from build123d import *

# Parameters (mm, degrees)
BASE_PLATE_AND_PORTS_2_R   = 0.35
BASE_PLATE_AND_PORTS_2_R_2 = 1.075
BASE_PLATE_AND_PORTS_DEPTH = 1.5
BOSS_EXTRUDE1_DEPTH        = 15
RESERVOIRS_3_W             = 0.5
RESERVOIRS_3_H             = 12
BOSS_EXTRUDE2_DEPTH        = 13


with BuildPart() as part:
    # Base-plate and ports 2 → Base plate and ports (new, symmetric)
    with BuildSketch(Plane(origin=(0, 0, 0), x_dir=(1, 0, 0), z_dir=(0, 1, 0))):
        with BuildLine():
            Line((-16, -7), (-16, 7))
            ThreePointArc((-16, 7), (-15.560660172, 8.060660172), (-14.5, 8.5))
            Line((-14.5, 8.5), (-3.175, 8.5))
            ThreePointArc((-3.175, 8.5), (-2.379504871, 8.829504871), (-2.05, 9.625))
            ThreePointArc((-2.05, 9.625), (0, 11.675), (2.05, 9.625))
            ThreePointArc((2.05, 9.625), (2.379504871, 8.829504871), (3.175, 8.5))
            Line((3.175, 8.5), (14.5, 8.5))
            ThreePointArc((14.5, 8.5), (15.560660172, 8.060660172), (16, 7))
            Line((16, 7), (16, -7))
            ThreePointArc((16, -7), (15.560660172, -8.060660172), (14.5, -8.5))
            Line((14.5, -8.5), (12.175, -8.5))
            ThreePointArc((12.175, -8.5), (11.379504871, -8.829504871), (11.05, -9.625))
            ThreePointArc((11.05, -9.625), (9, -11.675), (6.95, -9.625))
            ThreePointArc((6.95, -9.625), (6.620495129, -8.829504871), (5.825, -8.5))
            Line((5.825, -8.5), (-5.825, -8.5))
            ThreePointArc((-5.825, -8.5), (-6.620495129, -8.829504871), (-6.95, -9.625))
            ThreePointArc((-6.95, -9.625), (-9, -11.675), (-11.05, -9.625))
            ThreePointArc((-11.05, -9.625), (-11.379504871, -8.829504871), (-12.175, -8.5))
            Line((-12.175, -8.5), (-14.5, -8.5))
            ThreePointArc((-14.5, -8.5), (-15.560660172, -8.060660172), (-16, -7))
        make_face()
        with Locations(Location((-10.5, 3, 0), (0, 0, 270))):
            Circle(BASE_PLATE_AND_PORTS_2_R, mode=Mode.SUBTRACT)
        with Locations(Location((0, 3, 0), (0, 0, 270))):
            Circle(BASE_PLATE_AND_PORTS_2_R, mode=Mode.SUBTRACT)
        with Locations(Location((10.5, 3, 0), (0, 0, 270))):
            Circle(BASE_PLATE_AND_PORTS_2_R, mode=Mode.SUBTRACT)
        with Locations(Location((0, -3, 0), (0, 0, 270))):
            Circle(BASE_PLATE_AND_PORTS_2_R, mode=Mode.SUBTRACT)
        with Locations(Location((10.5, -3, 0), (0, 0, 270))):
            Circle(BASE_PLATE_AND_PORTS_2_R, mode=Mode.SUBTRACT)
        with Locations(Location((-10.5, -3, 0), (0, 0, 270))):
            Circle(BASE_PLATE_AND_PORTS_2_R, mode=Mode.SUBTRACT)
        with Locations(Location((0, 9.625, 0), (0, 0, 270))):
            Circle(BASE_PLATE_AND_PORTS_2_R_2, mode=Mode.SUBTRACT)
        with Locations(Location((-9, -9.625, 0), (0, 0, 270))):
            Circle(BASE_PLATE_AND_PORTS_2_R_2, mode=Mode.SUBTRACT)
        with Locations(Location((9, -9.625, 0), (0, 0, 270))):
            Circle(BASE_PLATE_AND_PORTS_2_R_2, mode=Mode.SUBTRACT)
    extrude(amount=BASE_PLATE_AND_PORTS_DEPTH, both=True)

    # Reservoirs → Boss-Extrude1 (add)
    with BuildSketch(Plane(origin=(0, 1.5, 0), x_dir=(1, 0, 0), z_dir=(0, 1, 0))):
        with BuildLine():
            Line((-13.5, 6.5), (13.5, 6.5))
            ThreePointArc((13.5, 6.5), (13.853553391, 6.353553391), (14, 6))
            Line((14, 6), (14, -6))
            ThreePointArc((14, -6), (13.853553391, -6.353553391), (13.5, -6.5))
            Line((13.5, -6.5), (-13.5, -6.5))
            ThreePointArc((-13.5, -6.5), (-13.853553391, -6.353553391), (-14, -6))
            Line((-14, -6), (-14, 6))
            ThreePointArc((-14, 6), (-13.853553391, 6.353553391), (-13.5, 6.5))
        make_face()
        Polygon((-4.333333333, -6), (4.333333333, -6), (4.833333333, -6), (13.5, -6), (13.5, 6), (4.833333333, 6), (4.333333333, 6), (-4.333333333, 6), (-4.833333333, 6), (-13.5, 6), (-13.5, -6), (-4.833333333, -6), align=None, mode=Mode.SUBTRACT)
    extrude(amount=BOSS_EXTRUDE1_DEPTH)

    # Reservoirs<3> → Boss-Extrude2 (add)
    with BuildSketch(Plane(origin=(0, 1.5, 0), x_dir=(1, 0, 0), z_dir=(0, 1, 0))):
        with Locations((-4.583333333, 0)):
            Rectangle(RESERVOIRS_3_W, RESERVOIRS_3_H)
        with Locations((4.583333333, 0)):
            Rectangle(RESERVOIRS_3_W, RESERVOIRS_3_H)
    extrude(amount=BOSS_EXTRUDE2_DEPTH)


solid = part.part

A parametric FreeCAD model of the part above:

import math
import FreeCAD as App
import Part
import Sketcher

doc = App.newDocument("Part")
body = doc.addObject("PartDesign::Body", "Body")

sketch1 = body.newObject("Sketcher::SketchObject", "Sketch")
sketch1.AttachmentSupport = (doc.getObject("XZ_Plane"), [""])
sketch1.MapMode = "FlatFace"
sketch1.addGeometry([
    Part.LineSegment(App.Vector(-16, -7, 0), App.Vector(-16, 7, 0)),
    Part.ArcOfCircle(Part.Circle(App.Vector(-14.5, 7, 0), App.Vector(0, 0, 1), 1.5), math.radians(90), math.radians(180)),
    Part.LineSegment(App.Vector(-14.5, 8.5, 0), App.Vector(-12.18, 8.5, 0)),
    Part.ArcOfCircle(Part.Circle(App.Vector(-12.17, 9.62, 0), App.Vector(0, 0, 1), 1.12), math.radians(-90), math.radians(0)),
    Part.ArcOfCircle(Part.Circle(App.Vector(-9, 9.62, 0), App.Vector(0, 0, 1), 2.05), math.radians(0), math.radians(180)),
    Part.ArcOfCircle(Part.Circle(App.Vector(-5.83, 9.62, 0), App.Vector(0, 0, 1), 1.12), math.radians(180), math.radians(270)),
    Part.LineSegment(App.Vector(-5.83, 8.5, 0), App.Vector(5.83, 8.5, 0)),
    Part.ArcOfCircle(Part.Circle(App.Vector(5.83, 9.62, 0), App.Vector(0, 0, 1), 1.12), math.radians(-90), math.radians(0)),
    Part.ArcOfCircle(Part.Circle(App.Vector(9, 9.62, 0), App.Vector(0, 0, 1), 2.05), math.radians(0), math.radians(180)),
    Part.ArcOfCircle(Part.Circle(App.Vector(12.17, 9.62, 0), App.Vector(0, 0, 1), 1.12), math.radians(180), math.radians(270)),
    Part.LineSegment(App.Vector(12.18, 8.5, 0), App.Vector(14.5, 8.5, 0)),
    Part.ArcOfCircle(Part.Circle(App.Vector(14.5, 7, 0), App.Vector(0, 0, 1), 1.5), math.radians(0), math.radians(90)),
    Part.LineSegment(App.Vector(16, 7, 0), App.Vector(16, -7, 0)),
    Part.ArcOfCircle(Part.Circle(App.Vector(14.5, -7, 0), App.Vector(0, 0, 1), 1.5), math.radians(-90), math.radians(0)),
    Part.LineSegment(App.Vector(14.5, -8.5, 0), App.Vector(3.17, -8.5, 0)),
    Part.ArcOfCircle(Part.Circle(App.Vector(3.17, -9.62, 0), App.Vector(0, 0, 1), 1.12), math.radians(90), math.radians(180)),
    Part.ArcOfCircle(Part.Circle(App.Vector(0, -9.62, 0), App.Vector(0, 0, 1), 2.05), math.radians(180), math.radians(360)),
    Part.ArcOfCircle(Part.Circle(App.Vector(-3.17, -9.62, 0), App.Vector(0, 0, 1), 1.12), math.radians(0), math.radians(90)),
    Part.LineSegment(App.Vector(-3.17, -8.5, 0), App.Vector(-14.5, -8.5, 0)),
    Part.ArcOfCircle(Part.Circle(App.Vector(-14.5, -7, 0), App.Vector(0, 0, 1), 1.5), math.radians(180), math.radians(270)),
    Part.Circle(App.Vector(9, 9.62, 0), App.Vector(0, 0, 1), 1.07),
    Part.Circle(App.Vector(10.5, 3, 0), App.Vector(0, 0, 1), 0.35),
    Part.Circle(App.Vector(-9, 9.62, 0), App.Vector(0, 0, 1), 1.07),
    Part.Circle(App.Vector(0, 3, 0), App.Vector(0, 0, 1), 0.35),
    Part.Circle(App.Vector(-10.5, 3, 0), App.Vector(0, 0, 1), 0.35),
    Part.Circle(App.Vector(10.5, -3, 0), App.Vector(0, 0, 1), 0.35),
    Part.Circle(App.Vector(0, -3, 0), App.Vector(0, 0, 1), 0.35),
    Part.Circle(App.Vector(-10.5, -3, 0), App.Vector(0, 0, 1), 0.35),
    Part.Circle(App.Vector(0, -9.62, 0), App.Vector(0, 0, 1), 1.07),
], False)
sketch1.addConstraint([
    Sketcher.Constraint("Tangent", 0, 2, 1, 2),
    Sketcher.Constraint("Tangent", 1, 1, 2, 1),
    Sketcher.Constraint("Tangent", 2, 2, 3, 1),
    Sketcher.Constraint("Tangent", 3, 2, 4, 2),
    Sketcher.Constraint("Tangent", 4, 1, 5, 1),
    Sketcher.Constraint("Tangent", 5, 2, 6, 1),
    Sketcher.Constraint("Tangent", 6, 2, 7, 1),
    Sketcher.Constraint("Tangent", 7, 2, 8, 2),
    Sketcher.Constraint("Tangent", 8, 1, 9, 1),
    Sketcher.Constraint("Tangent", 9, 2, 10, 1),
    Sketcher.Constraint("Tangent", 10, 2, 11, 2),
    Sketcher.Constraint("Tangent", 11, 1, 12, 1),
    Sketcher.Constraint("Tangent", 12, 2, 13, 2),
    Sketcher.Constraint("Tangent", 13, 1, 14, 1),
    Sketcher.Constraint("Tangent", 14, 2, 15, 1),
    Sketcher.Constraint("Tangent", 15, 2, 16, 2),
    Sketcher.Constraint("Tangent", 16, 1, 17, 1),
    Sketcher.Constraint("Tangent", 17, 2, 18, 1),
    Sketcher.Constraint("Tangent", 18, 2, 19, 2),
    Sketcher.Constraint("Tangent", 19, 1, 0, 1),
    Sketcher.Constraint("Vertical", 0),
    Sketcher.Constraint("Horizontal", 2),
    Sketcher.Constraint("Horizontal", 6),
    Sketcher.Constraint("Horizontal", 10),
    Sketcher.Constraint("Vertical", 12),
    Sketcher.Constraint("Horizontal", 14),
    Sketcher.Constraint("Horizontal", 18),
    Sketcher.Constraint("Coincident", 20, 3, 8, 3),
    Sketcher.Constraint("Coincident", 22, 3, 4, 3),
    Sketcher.Constraint("Coincident", 28, 3, 16, 3),
    Sketcher.Constraint("Equal", 3, 5),
    Sketcher.Constraint("Equal", 5, 7),
    Sketcher.Constraint("Equal", 4, 8),
    Sketcher.Constraint("Equal", 7, 9),
    Sketcher.Constraint("Equal", 1, 11),
    Sketcher.Constraint("Equal", 11, 13),
    Sketcher.Constraint("Equal", 9, 15),
    Sketcher.Constraint("Equal", 8, 16),
    Sketcher.Constraint("Equal", 15, 17),
    Sketcher.Constraint("Equal", 13, 19),
    Sketcher.Constraint("Equal", 20, 22),
    Sketcher.Constraint("Equal", 21, 23),
    Sketcher.Constraint("Equal", 23, 24),
    Sketcher.Constraint("Equal", 24, 25),
    Sketcher.Constraint("Equal", 25, 26),
    Sketcher.Constraint("Equal", 26, 27),
    Sketcher.Constraint("Equal", 22, 28),
    Sketcher.Constraint("Symmetric", 1, 3, 13, 3, -1, 1),
    Sketcher.Constraint("Symmetric", 24, 3, 25, 3, -1, 1),
    Sketcher.Constraint("Symmetric", 23, 3, 26, 3, -1, 1),
    Sketcher.Constraint("Symmetric", 21, 3, 27, 3, -1, 1),
    Sketcher.Constraint("Symmetric", 4, 3, 8, 3, -2),
    Sketcher.Constraint("Symmetric", 15, 3, 17, 3, -2),
    Sketcher.Constraint("Symmetric", 21, 3, 24, 3, -2),
    Sketcher.Constraint("PointOnObject", 23, 3, -2),
    Sketcher.Constraint("Horizontal", 3, 3, 4, 3),
    Sketcher.Constraint("Horizontal", 4, 3, 5, 3),
    Sketcher.Constraint("Horizontal", 8, 3, 9, 3),
    Sketcher.Constraint("Horizontal", 15, 3, 16, 3),
    Sketcher.Constraint("Horizontal", 21, 3, 23, 3),
    Sketcher.Constraint("Diameter", 21, 0.7),
    Sketcher.Constraint("Radius", 1, 1.5),
    Sketcher.Constraint("Diameter", 20, 2.15),
    Sketcher.Constraint("DistanceY", 0, 1, 0, 2, 14.0),
    Sketcher.Constraint("Radius", 4, 2.05),
    Sketcher.Constraint("DistanceX", 4, 3, -1, 1, 9.0),
    Sketcher.Constraint("DistanceY", -1, 1, 21, 3, 3.0),
    Sketcher.Constraint("DistanceX", 0, 2, -1, 1, 16.0),
    Sketcher.Constraint("Radius", 3, 1.125),
    Sketcher.Constraint("DistanceX", 21, 3, 11, 3, 4.0),
])
pad1 = body.newObject("PartDesign::Pad", "Pad")
pad1.Profile = sketch1
pad1.Length = 3
pad1.Midplane = True

sketch2 = body.newObject("Sketcher::SketchObject", "Sketch001")
sketch2.AttachmentSupport = (doc.getObject("XZ_Plane"), [""])
sketch2.MapMode = "FlatFace"
sketch2.AttachmentOffset = App.Placement(App.Vector(0, 0, -1.5), App.Rotation())
sketch2.addGeometry([
    Part.LineSegment(App.Vector(13.5, -6.5, 0), App.Vector(-13.5, -6.5, 0)),
    Part.ArcOfCircle(Part.Circle(App.Vector(-13.5, -6, 0), App.Vector(0, 0, 1), 0.5), math.radians(180), math.radians(270)),
    Part.LineSegment(App.Vector(-14, -6, 0), App.Vector(-14, 6, 0)),
    Part.ArcOfCircle(Part.Circle(App.Vector(-13.5, 6, 0), App.Vector(0, 0, 1), 0.5), math.radians(90), math.radians(180)),
    Part.LineSegment(App.Vector(-13.5, 6.5, 0), App.Vector(13.5, 6.5, 0)),
    Part.ArcOfCircle(Part.Circle(App.Vector(13.5, 6, 0), App.Vector(0, 0, 1), 0.5), math.radians(0), math.radians(90)),
    Part.LineSegment(App.Vector(14, 6, 0), App.Vector(14, -6, 0)),
    Part.ArcOfCircle(Part.Circle(App.Vector(13.5, -6, 0), App.Vector(0, 0, 1), 0.5), math.radians(-90), math.radians(0)),
    Part.LineSegment(App.Vector(-13.5, 6, 0), App.Vector(-13.5, -6, 0)),
    Part.LineSegment(App.Vector(-13.5, -6, 0), App.Vector(13.5, -6, 0)),
    Part.LineSegment(App.Vector(13.5, -6, 0), App.Vector(13.5, 6, 0)),
    Part.LineSegment(App.Vector(13.5, 6, 0), App.Vector(-13.5, 6, 0)),
], False)
sketch2.addConstraint([
    Sketcher.Constraint("Tangent", 0, 2, 1, 2),
    Sketcher.Constraint("Tangent", 1, 1, 2, 1),
    Sketcher.Constraint("Tangent", 2, 2, 3, 2),
    Sketcher.Constraint("Tangent", 3, 1, 4, 1),
    Sketcher.Constraint("Tangent", 4, 2, 5, 2),
    Sketcher.Constraint("Tangent", 5, 1, 6, 1),
    Sketcher.Constraint("Tangent", 6, 2, 7, 2),
    Sketcher.Constraint("Tangent", 7, 1, 0, 1),
    Sketcher.Constraint("Coincident", 8, 2, 9, 1),
    Sketcher.Constraint("Coincident", 9, 2, 10, 1),
    Sketcher.Constraint("Coincident", 10, 2, 11, 1),
    Sketcher.Constraint("Coincident", 11, 2, 8, 1),
    Sketcher.Constraint("Horizontal", 0),
    Sketcher.Constraint("Vertical", 2),
    Sketcher.Constraint("Horizontal", 4),
    Sketcher.Constraint("Vertical", 6),
    Sketcher.Constraint("Vertical", 8),
    Sketcher.Constraint("Horizontal", 9),
    Sketcher.Constraint("Vertical", 10),
    Sketcher.Constraint("Horizontal", 11),
    Sketcher.Constraint("Coincident", 8, 2, 1, 3),
    Sketcher.Constraint("Coincident", 9, 2, 7, 3),
    Sketcher.Constraint("Coincident", 10, 2, 5, 3),
    Sketcher.Constraint("Equal", 1, 3),
    Sketcher.Constraint("Symmetric", 1, 3, 5, 3, -1, 1),
    Sketcher.Constraint("Radius", 1, 0.5),
    Sketcher.Constraint("DistanceX", 0, 2, 0, 1, 27.0),
    Sketcher.Constraint("DistanceY", 2, 1, 2, 2, 12.0),
])
pad2 = body.newObject("PartDesign::Pad", "Pad001")
pad2.Profile = sketch2
pad2.Length = 15
pad2.Reversed = True

sketch3 = body.newObject("Sketcher::SketchObject", "Sketch002")
sketch3.AttachmentSupport = (doc.getObject("XZ_Plane"), [""])
sketch3.MapMode = "FlatFace"
sketch3.AttachmentOffset = App.Placement(App.Vector(0, 0, -1.5), App.Rotation())
sketch3.addGeometry([
    Part.LineSegment(App.Vector(-4.8, -6, 0), App.Vector(-4.8, 6, 0)),
    Part.LineSegment(App.Vector(-4.8, 6, 0), App.Vector(-4.3, 6, 0)),
    Part.LineSegment(App.Vector(-4.3, 6, 0), App.Vector(-4.3, -6, 0)),
    Part.LineSegment(App.Vector(-4.3, -6, 0), App.Vector(-4.8, -6, 0)),
    Part.LineSegment(App.Vector(4.3, -6, 0), App.Vector(4.3, 6, 0)),
    Part.LineSegment(App.Vector(4.3, 6, 0), App.Vector(4.8, 6, 0)),
    Part.LineSegment(App.Vector(4.8, 6, 0), App.Vector(4.8, -6, 0)),
    Part.LineSegment(App.Vector(4.8, -6, 0), App.Vector(4.3, -6, 0)),
], False)
sketch3.addConstraint([
    Sketcher.Constraint("Coincident", 0, 2, 1, 1),
    Sketcher.Constraint("Coincident", 1, 2, 2, 1),
    Sketcher.Constraint("Coincident", 2, 2, 3, 1),
    Sketcher.Constraint("Coincident", 3, 2, 0, 1),
    Sketcher.Constraint("Coincident", 4, 2, 5, 1),
    Sketcher.Constraint("Coincident", 5, 2, 6, 1),
    Sketcher.Constraint("Coincident", 6, 2, 7, 1),
    Sketcher.Constraint("Coincident", 7, 2, 4, 1),
    Sketcher.Constraint("Vertical", 0),
    Sketcher.Constraint("Horizontal", 1),
    Sketcher.Constraint("Vertical", 2),
    Sketcher.Constraint("Horizontal", 3),
    Sketcher.Constraint("Vertical", 4),
    Sketcher.Constraint("Horizontal", 5),
    Sketcher.Constraint("Vertical", 6),
    Sketcher.Constraint("Horizontal", 7),
    Sketcher.Constraint("Symmetric", 2, 2, 4, 2, -1, 1),
    Sketcher.Constraint("Symmetric", 0, 2, 6, 2, -1, 1),
    Sketcher.Constraint("Horizontal", 1, 2, 4, 2),
    Sketcher.Constraint("DistanceY", 0, 1, 0, 2, 12.0),
    Sketcher.Constraint("DistanceX", 1, 1, 1, 2, 0.5),
    Sketcher.Constraint("DistanceX", 0, 2, -1, 1, 4.833333),
])
pad3 = body.newObject("PartDesign::Pad", "Pad002")
pad3.Profile = sketch3
pad3.Length = 13
pad3.Reversed = True

doc.recompute()
